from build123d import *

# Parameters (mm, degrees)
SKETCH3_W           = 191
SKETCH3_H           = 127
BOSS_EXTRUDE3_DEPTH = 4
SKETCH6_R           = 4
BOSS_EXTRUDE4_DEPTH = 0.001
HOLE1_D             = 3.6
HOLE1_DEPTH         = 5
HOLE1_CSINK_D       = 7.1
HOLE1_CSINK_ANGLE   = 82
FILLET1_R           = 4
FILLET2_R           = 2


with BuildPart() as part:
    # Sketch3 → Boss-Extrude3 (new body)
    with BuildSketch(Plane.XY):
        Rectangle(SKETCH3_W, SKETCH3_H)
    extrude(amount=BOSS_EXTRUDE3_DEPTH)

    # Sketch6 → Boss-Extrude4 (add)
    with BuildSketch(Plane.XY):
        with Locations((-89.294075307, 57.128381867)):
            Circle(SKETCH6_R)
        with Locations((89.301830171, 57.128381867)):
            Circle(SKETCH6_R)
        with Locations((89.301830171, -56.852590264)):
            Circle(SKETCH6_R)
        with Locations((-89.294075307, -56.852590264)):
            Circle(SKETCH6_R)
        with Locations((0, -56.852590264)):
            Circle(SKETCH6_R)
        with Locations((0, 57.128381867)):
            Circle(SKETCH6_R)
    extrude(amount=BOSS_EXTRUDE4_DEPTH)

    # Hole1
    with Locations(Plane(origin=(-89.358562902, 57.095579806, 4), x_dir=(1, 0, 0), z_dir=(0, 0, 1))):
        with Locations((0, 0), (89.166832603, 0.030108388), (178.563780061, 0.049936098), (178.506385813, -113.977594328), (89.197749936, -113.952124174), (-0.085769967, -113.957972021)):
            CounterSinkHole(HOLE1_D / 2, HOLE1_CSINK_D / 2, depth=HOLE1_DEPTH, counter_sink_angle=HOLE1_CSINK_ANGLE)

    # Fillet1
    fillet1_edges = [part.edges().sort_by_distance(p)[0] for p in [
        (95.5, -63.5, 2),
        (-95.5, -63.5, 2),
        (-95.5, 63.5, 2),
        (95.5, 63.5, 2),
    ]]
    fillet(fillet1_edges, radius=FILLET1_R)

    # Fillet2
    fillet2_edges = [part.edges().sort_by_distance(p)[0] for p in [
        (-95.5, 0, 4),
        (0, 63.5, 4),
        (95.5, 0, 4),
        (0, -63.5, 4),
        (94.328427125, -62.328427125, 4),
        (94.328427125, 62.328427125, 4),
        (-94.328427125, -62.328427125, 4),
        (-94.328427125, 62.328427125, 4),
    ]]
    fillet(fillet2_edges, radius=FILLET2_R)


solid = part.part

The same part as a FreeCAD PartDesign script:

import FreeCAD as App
import Part
import Sketcher
from FreeCAD import Vector


def edges_at(feature, points):
    """Names of the edges that pass closest to the given points."""
    edges = feature.Shape.Edges
    near = lambda p: min(range(len(edges)), key=lambda i: edges[i].distToShape(Part.Vertex(*p))[0])
    return sorted({f"Edge{near(p) + 1}" for p in points})

doc = App.newDocument("Part")
body = doc.addObject("PartDesign::Body", "Body")

# Sketch on XY plane
sketch1 = body.newObject("Sketcher::SketchObject", "Sketch")
sketch1.AttachmentSupport = (doc.getObject("XY_Plane"), [""])
sketch1.MapMode = "FlatFace"
sketch1.addGeometry([
    Part.LineSegment(Vector(-96, 64, 0), Vector(-96, -64, 0)),
    Part.LineSegment(Vector(-96, -64, 0), Vector(96, -64, 0)),
    Part.LineSegment(Vector(96, -64, 0), Vector(96, 64, 0)),
    Part.LineSegment(Vector(96, 64, 0), Vector(-96, 64, 0)),
], False)
sketch1.addConstraint([
    Sketcher.Constraint("Coincident", 0, 2, 1, 1),
    Sketcher.Constraint("Coincident", 1, 2, 2, 1),
    Sketcher.Constraint("Coincident", 2, 2, 3, 1),
    Sketcher.Constraint("Coincident", 3, 2, 0, 1),
    Sketcher.Constraint("Vertical", 0),
    Sketcher.Constraint("Horizontal", 1),
    Sketcher.Constraint("Vertical", 2),
    Sketcher.Constraint("Horizontal", 3),
    Sketcher.Constraint("Symmetric", 0, 2, 2, 2, -1, 1),
    Sketcher.Constraint("DistanceX", 1, 1, 1, 2, 191.0),
    Sketcher.Constraint("DistanceY", 0, 2, 0, 1, 127.0),
])
pad1 = body.newObject("PartDesign::Pad", "Pad")
pad1.Profile = sketch1
pad1.Length = 4

# Sketch on XY plane
sketch2 = body.newObject("Sketcher::SketchObject", "Sketch001")
sketch2.AttachmentSupport = (doc.getObject("XY_Plane"), [""])
sketch2.MapMode = "FlatFace"
sketch2.addGeometry([
    Part.Circle(Vector(-89.3, 57.1, 0), Vector(0, 0, 1), 4),  # 0
    Part.Circle(Vector(89.3, 57.1, 0), Vector(0, 0, 1), 4),  # 1
    Part.Circle(Vector(89.3, -56.9, 0), Vector(0, 0, 1), 4),  # 2
    Part.Circle(Vector(-89.3, -56.9, 0), Vector(0, 0, 1), 4),  # 3
    Part.Circle(Vector(0, -56.9, 0), Vector(0, 0, 1), 4),  # 4
    Part.Circle(Vector(0, 57.1, 0), Vector(0, 0, 1), 4),  # 5
], False)
sketch2.addConstraint([
    Sketcher.Constraint("Equal", 0, 1),
    Sketcher.Constraint("Equal", 1, 2),
    Sketcher.Constraint("Equal", 2, 3),
    Sketcher.Constraint("Equal", 3, 4),
    Sketcher.Constraint("Equal", 4, 5),
    Sketcher.Constraint("PointOnObject", 4, 3, -2),
    Sketcher.Constraint("PointOnObject", 5, 3, -2),
    Sketcher.Constraint("Horizontal", 0, 3, 1, 3),
    Sketcher.Constraint("Horizontal", 2, 3, 3, 3),
    Sketcher.Constraint("Horizontal", 3, 3, 4, 3),
    Sketcher.Constraint("Horizontal", 1, 3, 5, 3),
    Sketcher.Constraint("Vertical", 1, 3, 2, 3),
    Sketcher.Constraint("Vertical", 0, 3, 3, 3),
    Sketcher.Constraint("Diameter", 0, 8.0),
    Sketcher.Constraint("DistanceY", -1, 1, 0, 3, 57.128382),
    Sketcher.Constraint("DistanceX", -1, 1, 1, 3, 89.30183),
    Sketcher.Constraint("DistanceY", 2, 3, -1, 1, 56.85259),
    Sketcher.Constraint("DistanceX", 0, 3, -1, 1, 89.294075),
])
pad2 = body.newObject("PartDesign::Pad", "Pad001")
pad2.Profile = sketch2
pad2.Length = 0.001

# Sketch on XY plane
sketch3 = body.newObject("Sketcher::SketchObject", "Sketch002")
sketch3.AttachmentSupport = (doc.getObject("XY_Plane"), [""])
sketch3.MapMode = "FlatFace"
sketch3.AttachmentOffset = App.Placement(Vector(0, 0, 4), App.Rotation())
sketch3.addGeometry([
    Part.Circle(Vector(-89.4, 57.1, 0), Vector(0, 0, 1), 1.8),  # 0
    Part.Circle(Vector(-0.2, 57.1, 0), Vector(0, 0, 1), 1.8),  # 1
    Part.Circle(Vector(89.2, 57.1, 0), Vector(0, 0, 1), 1.8),  # 2
    Part.Circle(Vector(89.1, -56.9, 0), Vector(0, 0, 1), 1.8),  # 3
    Part.Circle(Vector(-0.2, -56.9, 0), Vector(0, 0, 1), 1.8),  # 4
    Part.Circle(Vector(-89.4, -56.9, 0), Vector(0, 0, 1), 1.8),  # 5
], False)
sketch3.addConstraint([
    Sketcher.Constraint("Equal", 0, 1),
    Sketcher.Constraint("Equal", 1, 2),
    Sketcher.Constraint("Equal", 2, 3),
    Sketcher.Constraint("Equal", 3, 4),
    Sketcher.Constraint("Equal", 4, 5),
    Sketcher.Constraint("Diameter", 0, 3.6),
    Sketcher.Constraint("DistanceY", -1, 1, 0, 3, 57.09558),
    Sketcher.Constraint("DistanceX", 1, 3, -1, 1, 0.19173),
    Sketcher.Constraint("DistanceY", -1, 1, 1, 3, 57.125688),
    Sketcher.Constraint("DistanceX", 0, 3, 2, 3, 178.56378),
    Sketcher.Constraint("DistanceY", 3, 3, 2, 3, 114.02753),
    Sketcher.Constraint("DistanceY", 3, 3, 4, 3, 0.02547),
    Sketcher.Constraint("DistanceX", 0, 3, 4, 3, 89.19775),
    Sketcher.Constraint("DistanceX", 5, 3, 4, 3, 89.28352),
    Sketcher.Constraint("DistanceY", 5, 3, 1, 3, 113.98808),
    Sketcher.Constraint("DistanceY", 5, 3, 2, 3, 114.007908),
    Sketcher.Constraint("DistanceX", 0, 3, -1, 1, 89.358563),
    Sketcher.Constraint("DistanceX", -1, 1, 3, 3, 89.147823),
])
doc.recompute()
hole = body.newObject("PartDesign::Hole", "Hole")
hole.Profile = sketch3
hole.ThreadType = "None"
hole.Diameter = 3.6
hole.DepthType = "Dimension"
hole.Depth = 5
hole.DrillPoint = "Flat"
hole.HoleCutType = "Countersink"
hole.HoleCutDiameter = 7.1
hole.HoleCutCountersinkAngle = 82
doc.recompute()

fillet = body.newObject("PartDesign::Fillet", "Fillet")
fillet.Base = (hole, edges_at(hole, [
    (95.5, -63.5, 2),
    (-95.5, -63.5, 2),
    (-95.5, 63.5, 2),
    (95.5, 63.5, 2),
]))
fillet.Radius = 4
doc.recompute()

fillet2 = body.newObject("PartDesign::Fillet", "Fillet001")
fillet2.Base = (fillet, edges_at(fillet, [
    (-95.5, 0, 4),
    (0, 63.5, 4),
    (95.5, 0, 4),
    (0, -63.5, 4),
    (94.328, -62.328, 4),
    (94.328, 62.328, 4),
    (-94.328, -62.328, 4),
    (-94.328, 62.328, 4),
]))
fillet2.Radius = 2

doc.recompute()
